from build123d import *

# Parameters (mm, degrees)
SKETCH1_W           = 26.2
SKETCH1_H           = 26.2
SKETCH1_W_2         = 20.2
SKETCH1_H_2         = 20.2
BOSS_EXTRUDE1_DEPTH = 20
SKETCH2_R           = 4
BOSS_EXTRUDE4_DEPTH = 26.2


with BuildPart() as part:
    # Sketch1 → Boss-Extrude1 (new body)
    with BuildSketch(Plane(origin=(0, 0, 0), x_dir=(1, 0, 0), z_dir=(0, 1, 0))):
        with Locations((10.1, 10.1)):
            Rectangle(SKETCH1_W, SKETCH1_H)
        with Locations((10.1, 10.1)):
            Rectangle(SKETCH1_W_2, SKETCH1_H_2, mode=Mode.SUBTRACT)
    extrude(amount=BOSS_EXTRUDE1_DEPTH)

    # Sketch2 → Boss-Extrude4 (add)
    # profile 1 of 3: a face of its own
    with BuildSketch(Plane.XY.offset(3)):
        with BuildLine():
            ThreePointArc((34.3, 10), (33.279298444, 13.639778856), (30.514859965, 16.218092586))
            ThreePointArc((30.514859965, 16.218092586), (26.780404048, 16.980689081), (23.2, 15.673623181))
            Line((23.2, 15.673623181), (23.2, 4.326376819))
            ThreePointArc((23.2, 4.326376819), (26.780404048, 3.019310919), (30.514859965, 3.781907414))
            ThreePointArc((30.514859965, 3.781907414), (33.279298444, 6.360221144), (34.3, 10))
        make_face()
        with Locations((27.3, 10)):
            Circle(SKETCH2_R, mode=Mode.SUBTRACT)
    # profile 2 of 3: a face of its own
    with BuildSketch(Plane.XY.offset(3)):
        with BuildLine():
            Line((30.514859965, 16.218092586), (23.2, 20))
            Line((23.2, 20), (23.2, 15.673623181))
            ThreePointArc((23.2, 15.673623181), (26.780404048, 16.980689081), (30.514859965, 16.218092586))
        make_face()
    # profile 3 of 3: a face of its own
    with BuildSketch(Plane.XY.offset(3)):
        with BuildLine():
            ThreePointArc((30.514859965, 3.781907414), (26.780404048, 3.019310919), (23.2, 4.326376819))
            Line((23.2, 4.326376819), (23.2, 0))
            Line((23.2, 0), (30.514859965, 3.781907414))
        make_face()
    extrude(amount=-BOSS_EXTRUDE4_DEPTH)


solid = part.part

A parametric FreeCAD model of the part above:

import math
import FreeCAD as App
import Part
import Sketcher
from FreeCAD import Vector
Q = App.Units.Quantity


def add_polygon(sketch, points):
    """Adds a closed chain of lines whose ends are joined by coincident constraints."""
    first, n = sketch.GeometryCount, len(points)
    for a, b in zip(points, points[1:] + points[:1]):
        sketch.addGeometry(Part.LineSegment(App.Vector(*a, 0), App.Vector(*b, 0)), False)
    for i in range(n):
        sketch.addConstraint(Sketcher.Constraint("Coincident", first + i, 2, first + (i + 1) % n, 1))

doc = App.newDocument("Part")
params = doc.addObject("Spreadsheet::Sheet", "Params")
for row, (alias, value) in enumerate([
    ("sketch1_width", "26.2 mm"),
    ("sketch1_width2", "20.2 mm"),
    ("pad1_length", "20 mm"),
    ("sketch2_diameter", "8 mm"),
    ("sketch2_radius", "7 mm"),
    ("sketch2_height", "20 mm"),
    ("pad2_length", "26.2 mm"),
], start=1):
    params.set(f"A{row}", alias)
    params.set(f"B{row}", "=" + value)
    params.setAlias(f"B{row}", alias)

body = doc.addObject("PartDesign::Body", "Body")

# Sketch on XZ plane
sketch1 = doc.addObject("Sketcher::SketchObject", "Sketch")
body.addObject(sketch1)
sketch1.AttachmentSupport = (doc.XZ_Plane, [""])
sketch1.MapMode = "FlatFace"
add_polygon(sketch1, [(-3, -23), (-3, 3), (23, 3), (23, -23)])  # lines 0-3
add_polygon(sketch1, [(20, 0), (0, 0), (0, -20), (20, -20)])  # lines 4-7
sketch1.addConstraint([
    Sketcher.Constraint("Vertical", 0),
    Sketcher.Constraint("Horizontal", 1),
    Sketcher.Constraint("Vertical", 2),
    Sketcher.Constraint("Horizontal", 3),
    Sketcher.Constraint("Horizontal", 4),
    Sketcher.Constraint("Vertical", 5),
    Sketcher.Constraint("Horizontal", 6),
    Sketcher.Constraint("Vertical", 7),
    Sketcher.Constraint("Coincident", 4, 2, -1, 1),
    Sketcher.Constraint("Equal", 3, 0),
    Sketcher.Constraint("Equal", 6, 5),
    Sketcher.Constraint("DistanceX", 1, 1, 1, 2, Q("26.2 mm")),
    Sketcher.Constraint("DistanceX", 4, 2, 4, 1, Q("20.2 mm")),
    Sketcher.Constraint("DistanceX", 0, 2, -1, 1, Q("3 mm")),
    Sketcher.Constraint("DistanceY", -1, 1, 0, 2, Q("3 mm")),
])
sketch1.setExpression("Constraints[19]", "Params.sketch1_width")
sketch1.setExpression("Constraints[20]", "Params.sketch1_width2")
pad1 = doc.addObject("PartDesign::Pad", "Pad")
body.addObject(pad1)
pad1.Profile = sketch1
pad1.setExpression("Length", "Params.pad1_length")
pad1.Reversed = True

# Sketch on XY plane
sketch2 = doc.addObject("Sketcher::SketchObject", "Sketch001")
body.addObject(sketch2)
sketch2.AttachmentSupport = (doc.XY_Plane, [""])
sketch2.MapMode = "FlatFace"
sketch2.AttachmentOffset = App.Placement(Vector(0, 0, 3), App.Rotation())
sketch2.addGeometry([
    Part.ArcOfCircle(Part.Circle(Vector(27.3, 10, 0), Vector(0, 0, 1), 7), math.radians(0), math.radians(63)),  # 0
    Part.LineSegment(Vector(30.5, 16.2, 0), Vector(23.2, 20, 0)),  # 1
    Part.LineSegment(Vector(23.2, 20, 0), Vector(23.2, 0, 0)),  # 2
    Part.LineSegment(Vector(23.2, 0, 0), Vector(30.5, 3.8, 0)),  # 3
    Part.ArcOfCircle(Part.Circle(Vector(27.3, 10, 0), Vector(0, 0, 1), 7), math.radians(-63), math.radians(0)),  # 4
    Part.Circle(Vector(27.3, 10, 0), Vector(0, 0, 1), 4),  # 5
], False)
sketch2.addConstraint([
    Sketcher.Constraint("Tangent", 0, 2, 1, 1),
    Sketcher.Constraint("Coincident", 1, 2, 2, 1),
    Sketcher.Constraint("Coincident", 2, 2, 3, 1),
    Sketcher.Constraint("Tangent", 3, 2, 4, 1),
    Sketcher.Constraint("Tangent", 4, 2, 0, 1),
    Sketcher.Constraint("Vertical", 2),
    Sketcher.Constraint("Coincident", 5, 3, 0, 3),
    Sketcher.Constraint("Equal", 0, 4),
    Sketcher.Constraint("PointOnObject", 2, 2, -1),
    Sketcher.Constraint("Horizontal", 5, 3, 4, 2),
    Sketcher.Constraint("Vertical", 0, 2, 3, 2),
    Sketcher.Constraint("Diameter", 5, Q("8 mm")),
    Sketcher.Constraint("Radius", 0, Q("7 mm")),
    Sketcher.Constraint("DistanceY", 2, 2, 2, 1, Q("20 mm")),
    Sketcher.Constraint("DistanceX", -1, 1, 0, 3, Q("27.3 mm")),
    Sketcher.Constraint("DistanceX", -1, 1, 1, 2, Q("23.2 mm")),
])
sketch2.setExpression("Constraints[11]", "Params.sketch2_diameter")
sketch2.setExpression("Constraints[12]", "Params.sketch2_radius")
sketch2.setExpression("Constraints[13]", "Params.sketch2_height")
pad2 = doc.addObject("PartDesign::Pad", "Pad001")
body.addObject(pad2)
pad2.Profile = sketch2
pad2.setExpression("Length", "Params.pad2_length")
pad2.Reversed = True

doc.recompute()
